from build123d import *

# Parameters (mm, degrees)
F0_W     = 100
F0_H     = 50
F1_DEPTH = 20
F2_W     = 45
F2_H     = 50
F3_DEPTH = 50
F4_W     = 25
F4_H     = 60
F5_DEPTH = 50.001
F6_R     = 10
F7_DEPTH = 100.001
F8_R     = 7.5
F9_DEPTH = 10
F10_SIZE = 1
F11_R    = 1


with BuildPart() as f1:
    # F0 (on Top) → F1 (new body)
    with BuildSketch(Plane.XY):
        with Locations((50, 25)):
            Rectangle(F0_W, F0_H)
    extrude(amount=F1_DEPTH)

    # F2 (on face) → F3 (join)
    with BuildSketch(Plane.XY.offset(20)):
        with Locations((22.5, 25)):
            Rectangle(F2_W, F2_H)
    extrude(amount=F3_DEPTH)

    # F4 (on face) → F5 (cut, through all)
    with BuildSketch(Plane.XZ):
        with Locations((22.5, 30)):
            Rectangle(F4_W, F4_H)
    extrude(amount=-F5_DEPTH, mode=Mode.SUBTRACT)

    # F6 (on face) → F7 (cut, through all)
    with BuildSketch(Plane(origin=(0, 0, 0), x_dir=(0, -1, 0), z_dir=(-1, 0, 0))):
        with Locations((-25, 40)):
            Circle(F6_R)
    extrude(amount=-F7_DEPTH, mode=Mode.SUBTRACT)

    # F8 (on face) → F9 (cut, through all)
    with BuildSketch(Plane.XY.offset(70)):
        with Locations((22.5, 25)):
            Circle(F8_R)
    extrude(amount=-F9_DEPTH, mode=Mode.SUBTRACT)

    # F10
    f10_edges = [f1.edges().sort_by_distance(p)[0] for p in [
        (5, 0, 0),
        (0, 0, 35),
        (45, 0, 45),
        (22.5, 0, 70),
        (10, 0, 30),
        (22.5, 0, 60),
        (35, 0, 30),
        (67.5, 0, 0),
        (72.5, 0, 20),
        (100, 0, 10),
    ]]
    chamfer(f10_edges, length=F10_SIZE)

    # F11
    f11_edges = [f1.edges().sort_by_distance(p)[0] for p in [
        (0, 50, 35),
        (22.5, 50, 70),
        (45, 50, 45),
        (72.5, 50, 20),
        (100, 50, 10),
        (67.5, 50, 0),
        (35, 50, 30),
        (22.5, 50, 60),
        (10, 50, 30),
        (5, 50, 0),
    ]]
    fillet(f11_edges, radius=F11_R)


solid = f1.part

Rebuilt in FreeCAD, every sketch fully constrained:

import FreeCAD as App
import Part
import Sketcher
Q = App.Units.Quantity


def edges_at(feature, points):
    """Names of the edges that pass closest to the given points."""
    edges = feature.Shape.Edges
    near = lambda p: min(range(len(edges)), key=lambda i: edges[i].distToShape(Part.Vertex(*p))[0])
    return sorted({f"Edge{near(p) + 1}" for p in points})


def add_polygon(sketch, points):
    """Adds a closed chain of lines whose ends are joined by coincident constraints."""
    first, n = sketch.GeometryCount, len(points)
    for a, b in zip(points, points[1:] + points[:1]):
        sketch.addGeometry(Part.LineSegment(App.Vector(*a, 0), App.Vector(*b, 0)), False)
    for i in range(n):
        sketch.addConstraint(Sketcher.Constraint("Coincident", first + i, 2, first + (i + 1) % n, 1))

doc = App.newDocument("Part")
params = doc.addObject("Spreadsheet::Sheet", "Params")
for row, (alias, value) in enumerate([
    ("sketch1_width", "100 mm"),
    ("sketch1_height", "50 mm"),
    ("pad1_length", "20 mm"),
    ("sketch2_width", "45 mm"),
    ("sketch2_height", "50 mm"),
    ("pad2_length", "50 mm"),
    ("sketch3_width", "25 mm"),
    ("sketch3_height", "60 mm"),
    ("sketch4_diameter", "20 mm"),
    ("sketch5_diameter", "15 mm"),
    ("chamfer_size", "1 mm"),
    ("fillet_radius", "1 mm"),
], start=1):
    params.set(f"A{row}", alias)
    params.set(f"B{row}", "=" + value)
    params.setAlias(f"B{row}", alias)

body = doc.addObject("PartDesign::Body", "Body")

# Sketch on XY plane
sketch1 = body.newObject("Sketcher::SketchObject", "Sketch")
sketch1.AttachmentSupport = (doc.getObject("XY_Plane"), [""])
sketch1.MapMode = "FlatFace"
add_polygon(sketch1, [(0, 50), (0, 0), (100, 0), (100, 50)])  # lines 0-3
sketch1.addConstraint([
    Sketcher.Constraint("Vertical", 0),
    Sketcher.Constraint("Horizontal", 1),
    Sketcher.Constraint("Vertical", 2),
    Sketcher.Constraint("Horizontal", 3),
    Sketcher.Constraint("Coincident", 0, 2, -1, 1),
    Sketcher.Constraint("DistanceX", 1, 1, 1, 2, Q("100 mm")),
    Sketcher.Constraint("DistanceY", 0, 2, 0, 1, Q("50 mm")),
])
sketch1.setExpression("Constraints[9]", "Params.sketch1_width")
sketch1.setExpression("Constraints[10]", "Params.sketch1_height")
pad1 = body.newObject("PartDesign::Pad", "Pad")
pad1.Profile = sketch1
pad1.setExpression("Length", "Params.pad1_length")

# Sketch on XY plane
sketch2 = body.newObject("Sketcher::SketchObject", "Sketch001")
sketch2.AttachmentSupport = (doc.getObject("XY_Plane"), [""])
sketch2.MapMode = "FlatFace"
sketch2.AttachmentOffset = App.Placement(App.Vector(0, 0, 20), App.Rotation())
add_polygon(sketch2, [(0, 50), (0, 0), (45, 0), (45, 50)])  # lines 0-3
sketch2.addConstraint([
    Sketcher.Constraint("Vertical", 0),
    Sketcher.Constraint("Horizontal", 1),
    Sketcher.Constraint("Vertical", 2),
    Sketcher.Constraint("Horizontal", 3),
    Sketcher.Constraint("Coincident", 0, 2, -1, 1),
    Sketcher.Constraint("DistanceX", 1, 1, 1, 2, Q("45 mm")),
    Sketcher.Constraint("DistanceY", 0, 2, 0, 1, Q("50 mm")),
])
sketch2.setExpression("Constraints[9]", "Params.sketch2_width")
sketch2.setExpression("Constraints[10]", "Params.sketch2_height")
pad2 = body.newObject("PartDesign::Pad", "Pad001")
pad2.Profile = sketch2
pad2.setExpression("Length", "Params.pad2_length")

# Sketch on XZ plane
sketch3 = body.newObject("Sketcher::SketchObject", "Sketch002")
sketch3.AttachmentSupport = (doc.getObject("XZ_Plane"), [""])
sketch3.MapMode = "FlatFace"
add_polygon(sketch3, [(10, 60), (10, 0), (35, 0), (35, 60)])  # lines 0-3
sketch3.addConstraint([
    Sketcher.Constraint("Vertical", 0),
    Sketcher.Constraint("Horizontal", 1),
    Sketcher.Constraint("Vertical", 2),
    Sketcher.Constraint("Horizontal", 3),
    Sketcher.Constraint("PointOnObject", 0, 2, -1),
    Sketcher.Constraint("DistanceX", 1, 1, 1, 2, Q("25 mm")),
    Sketcher.Constraint("DistanceY", 0, 2, 0, 1, Q("60 mm")),
    Sketcher.Constraint("DistanceX", -1, 1, 0, 2, Q("10 mm")),
])
sketch3.setExpression("Constraints[9]", "Params.sketch3_width")
sketch3.setExpression("Constraints[10]", "Params.sketch3_height")
pocket1 = body.newObject("PartDesign::Pocket", "Pocket")
pocket1.Profile = sketch3
pocket1.Type = "ThroughAll"

# Sketch on YZ plane
sketch4 = body.newObject("Sketcher::SketchObject", "Sketch003")
sketch4.AttachmentSupport = (doc.getObject("YZ_Plane"), [""])
sketch4.MapMode = "FlatFace"
sketch4.addGeometry(Part.Circle(App.Vector(25, 40, 0), App.Vector(0, 0, 1), 10), False)
sketch4.addConstraint([
    Sketcher.Constraint("Diameter", 0, Q("20 mm")),
    Sketcher.Constraint("DistanceX", -1, 1, 0, 3, Q("25 mm")),
    Sketcher.Constraint("DistanceY", -1, 1, 0, 3, Q("40 mm")),
])
sketch4.setExpression("Constraints[0]", "Params.sketch4_diameter")
pocket2 = body.newObject("PartDesign::Pocket", "Pocket001")
pocket2.Profile = sketch4
pocket2.Type = "ThroughAll"
pocket2.Reversed = True

# Sketch on XY plane
sketch5 = body.newObject("Sketcher::SketchObject", "Sketch004")
sketch5.AttachmentSupport = (doc.getObject("XY_Plane"), [""])
sketch5.MapMode = "FlatFace"
sketch5.AttachmentOffset = App.Placement(App.Vector(0, 0, 70), App.Rotation())
sketch5.addGeometry(Part.Circle(App.Vector(22, 25, 0), App.Vector(0, 0, 1), 8), False)
sketch5.addConstraint([
    Sketcher.Constraint("Diameter", 0, Q("15 mm")),
    Sketcher.Constraint("DistanceY", -1, 1, 0, 3, Q("25 mm")),
    Sketcher.Constraint("DistanceX", -1, 1, 0, 3, Q("22.5 mm")),
])
sketch5.setExpression("Constraints[0]", "Params.sketch5_diameter")
pocket3 = body.newObject("PartDesign::Pocket", "Pocket002")
pocket3.Profile = sketch5
pocket3.Type = "ThroughAll"
doc.recompute()

chamfer = body.newObject("PartDesign::Chamfer", "Chamfer")
chamfer.Base = (pocket3, edges_at(pocket3, [
    (5, 0, 0),
    (0, 0, 35),
    (45, 0, 45),
    (22.5, 0, 70),
    (10, 0, 30),
    (22.5, 0, 60),
    (35, 0, 30),
    (67.5, 0, 0),
    (72.5, 0, 20),
    (100, 0, 10),
]))
chamfer.setExpression("Size", "Params.chamfer_size")
doc.recompute()

fillet = body.newObject("PartDesign::Fillet", "Fillet")
fillet.Base = (chamfer, edges_at(chamfer, [
    (0, 50, 35),
    (22.5, 50, 70),
    (45, 50, 45),
    (72.5, 50, 20),
    (100, 50, 10),
    (67.5, 50, 0),
    (35, 50, 30),
    (22.5, 50, 60),
    (10, 50, 30),
    (5, 50, 0),
]))
fillet.setExpression("Radius", "Params.fillet_radius")

doc.recompute()
